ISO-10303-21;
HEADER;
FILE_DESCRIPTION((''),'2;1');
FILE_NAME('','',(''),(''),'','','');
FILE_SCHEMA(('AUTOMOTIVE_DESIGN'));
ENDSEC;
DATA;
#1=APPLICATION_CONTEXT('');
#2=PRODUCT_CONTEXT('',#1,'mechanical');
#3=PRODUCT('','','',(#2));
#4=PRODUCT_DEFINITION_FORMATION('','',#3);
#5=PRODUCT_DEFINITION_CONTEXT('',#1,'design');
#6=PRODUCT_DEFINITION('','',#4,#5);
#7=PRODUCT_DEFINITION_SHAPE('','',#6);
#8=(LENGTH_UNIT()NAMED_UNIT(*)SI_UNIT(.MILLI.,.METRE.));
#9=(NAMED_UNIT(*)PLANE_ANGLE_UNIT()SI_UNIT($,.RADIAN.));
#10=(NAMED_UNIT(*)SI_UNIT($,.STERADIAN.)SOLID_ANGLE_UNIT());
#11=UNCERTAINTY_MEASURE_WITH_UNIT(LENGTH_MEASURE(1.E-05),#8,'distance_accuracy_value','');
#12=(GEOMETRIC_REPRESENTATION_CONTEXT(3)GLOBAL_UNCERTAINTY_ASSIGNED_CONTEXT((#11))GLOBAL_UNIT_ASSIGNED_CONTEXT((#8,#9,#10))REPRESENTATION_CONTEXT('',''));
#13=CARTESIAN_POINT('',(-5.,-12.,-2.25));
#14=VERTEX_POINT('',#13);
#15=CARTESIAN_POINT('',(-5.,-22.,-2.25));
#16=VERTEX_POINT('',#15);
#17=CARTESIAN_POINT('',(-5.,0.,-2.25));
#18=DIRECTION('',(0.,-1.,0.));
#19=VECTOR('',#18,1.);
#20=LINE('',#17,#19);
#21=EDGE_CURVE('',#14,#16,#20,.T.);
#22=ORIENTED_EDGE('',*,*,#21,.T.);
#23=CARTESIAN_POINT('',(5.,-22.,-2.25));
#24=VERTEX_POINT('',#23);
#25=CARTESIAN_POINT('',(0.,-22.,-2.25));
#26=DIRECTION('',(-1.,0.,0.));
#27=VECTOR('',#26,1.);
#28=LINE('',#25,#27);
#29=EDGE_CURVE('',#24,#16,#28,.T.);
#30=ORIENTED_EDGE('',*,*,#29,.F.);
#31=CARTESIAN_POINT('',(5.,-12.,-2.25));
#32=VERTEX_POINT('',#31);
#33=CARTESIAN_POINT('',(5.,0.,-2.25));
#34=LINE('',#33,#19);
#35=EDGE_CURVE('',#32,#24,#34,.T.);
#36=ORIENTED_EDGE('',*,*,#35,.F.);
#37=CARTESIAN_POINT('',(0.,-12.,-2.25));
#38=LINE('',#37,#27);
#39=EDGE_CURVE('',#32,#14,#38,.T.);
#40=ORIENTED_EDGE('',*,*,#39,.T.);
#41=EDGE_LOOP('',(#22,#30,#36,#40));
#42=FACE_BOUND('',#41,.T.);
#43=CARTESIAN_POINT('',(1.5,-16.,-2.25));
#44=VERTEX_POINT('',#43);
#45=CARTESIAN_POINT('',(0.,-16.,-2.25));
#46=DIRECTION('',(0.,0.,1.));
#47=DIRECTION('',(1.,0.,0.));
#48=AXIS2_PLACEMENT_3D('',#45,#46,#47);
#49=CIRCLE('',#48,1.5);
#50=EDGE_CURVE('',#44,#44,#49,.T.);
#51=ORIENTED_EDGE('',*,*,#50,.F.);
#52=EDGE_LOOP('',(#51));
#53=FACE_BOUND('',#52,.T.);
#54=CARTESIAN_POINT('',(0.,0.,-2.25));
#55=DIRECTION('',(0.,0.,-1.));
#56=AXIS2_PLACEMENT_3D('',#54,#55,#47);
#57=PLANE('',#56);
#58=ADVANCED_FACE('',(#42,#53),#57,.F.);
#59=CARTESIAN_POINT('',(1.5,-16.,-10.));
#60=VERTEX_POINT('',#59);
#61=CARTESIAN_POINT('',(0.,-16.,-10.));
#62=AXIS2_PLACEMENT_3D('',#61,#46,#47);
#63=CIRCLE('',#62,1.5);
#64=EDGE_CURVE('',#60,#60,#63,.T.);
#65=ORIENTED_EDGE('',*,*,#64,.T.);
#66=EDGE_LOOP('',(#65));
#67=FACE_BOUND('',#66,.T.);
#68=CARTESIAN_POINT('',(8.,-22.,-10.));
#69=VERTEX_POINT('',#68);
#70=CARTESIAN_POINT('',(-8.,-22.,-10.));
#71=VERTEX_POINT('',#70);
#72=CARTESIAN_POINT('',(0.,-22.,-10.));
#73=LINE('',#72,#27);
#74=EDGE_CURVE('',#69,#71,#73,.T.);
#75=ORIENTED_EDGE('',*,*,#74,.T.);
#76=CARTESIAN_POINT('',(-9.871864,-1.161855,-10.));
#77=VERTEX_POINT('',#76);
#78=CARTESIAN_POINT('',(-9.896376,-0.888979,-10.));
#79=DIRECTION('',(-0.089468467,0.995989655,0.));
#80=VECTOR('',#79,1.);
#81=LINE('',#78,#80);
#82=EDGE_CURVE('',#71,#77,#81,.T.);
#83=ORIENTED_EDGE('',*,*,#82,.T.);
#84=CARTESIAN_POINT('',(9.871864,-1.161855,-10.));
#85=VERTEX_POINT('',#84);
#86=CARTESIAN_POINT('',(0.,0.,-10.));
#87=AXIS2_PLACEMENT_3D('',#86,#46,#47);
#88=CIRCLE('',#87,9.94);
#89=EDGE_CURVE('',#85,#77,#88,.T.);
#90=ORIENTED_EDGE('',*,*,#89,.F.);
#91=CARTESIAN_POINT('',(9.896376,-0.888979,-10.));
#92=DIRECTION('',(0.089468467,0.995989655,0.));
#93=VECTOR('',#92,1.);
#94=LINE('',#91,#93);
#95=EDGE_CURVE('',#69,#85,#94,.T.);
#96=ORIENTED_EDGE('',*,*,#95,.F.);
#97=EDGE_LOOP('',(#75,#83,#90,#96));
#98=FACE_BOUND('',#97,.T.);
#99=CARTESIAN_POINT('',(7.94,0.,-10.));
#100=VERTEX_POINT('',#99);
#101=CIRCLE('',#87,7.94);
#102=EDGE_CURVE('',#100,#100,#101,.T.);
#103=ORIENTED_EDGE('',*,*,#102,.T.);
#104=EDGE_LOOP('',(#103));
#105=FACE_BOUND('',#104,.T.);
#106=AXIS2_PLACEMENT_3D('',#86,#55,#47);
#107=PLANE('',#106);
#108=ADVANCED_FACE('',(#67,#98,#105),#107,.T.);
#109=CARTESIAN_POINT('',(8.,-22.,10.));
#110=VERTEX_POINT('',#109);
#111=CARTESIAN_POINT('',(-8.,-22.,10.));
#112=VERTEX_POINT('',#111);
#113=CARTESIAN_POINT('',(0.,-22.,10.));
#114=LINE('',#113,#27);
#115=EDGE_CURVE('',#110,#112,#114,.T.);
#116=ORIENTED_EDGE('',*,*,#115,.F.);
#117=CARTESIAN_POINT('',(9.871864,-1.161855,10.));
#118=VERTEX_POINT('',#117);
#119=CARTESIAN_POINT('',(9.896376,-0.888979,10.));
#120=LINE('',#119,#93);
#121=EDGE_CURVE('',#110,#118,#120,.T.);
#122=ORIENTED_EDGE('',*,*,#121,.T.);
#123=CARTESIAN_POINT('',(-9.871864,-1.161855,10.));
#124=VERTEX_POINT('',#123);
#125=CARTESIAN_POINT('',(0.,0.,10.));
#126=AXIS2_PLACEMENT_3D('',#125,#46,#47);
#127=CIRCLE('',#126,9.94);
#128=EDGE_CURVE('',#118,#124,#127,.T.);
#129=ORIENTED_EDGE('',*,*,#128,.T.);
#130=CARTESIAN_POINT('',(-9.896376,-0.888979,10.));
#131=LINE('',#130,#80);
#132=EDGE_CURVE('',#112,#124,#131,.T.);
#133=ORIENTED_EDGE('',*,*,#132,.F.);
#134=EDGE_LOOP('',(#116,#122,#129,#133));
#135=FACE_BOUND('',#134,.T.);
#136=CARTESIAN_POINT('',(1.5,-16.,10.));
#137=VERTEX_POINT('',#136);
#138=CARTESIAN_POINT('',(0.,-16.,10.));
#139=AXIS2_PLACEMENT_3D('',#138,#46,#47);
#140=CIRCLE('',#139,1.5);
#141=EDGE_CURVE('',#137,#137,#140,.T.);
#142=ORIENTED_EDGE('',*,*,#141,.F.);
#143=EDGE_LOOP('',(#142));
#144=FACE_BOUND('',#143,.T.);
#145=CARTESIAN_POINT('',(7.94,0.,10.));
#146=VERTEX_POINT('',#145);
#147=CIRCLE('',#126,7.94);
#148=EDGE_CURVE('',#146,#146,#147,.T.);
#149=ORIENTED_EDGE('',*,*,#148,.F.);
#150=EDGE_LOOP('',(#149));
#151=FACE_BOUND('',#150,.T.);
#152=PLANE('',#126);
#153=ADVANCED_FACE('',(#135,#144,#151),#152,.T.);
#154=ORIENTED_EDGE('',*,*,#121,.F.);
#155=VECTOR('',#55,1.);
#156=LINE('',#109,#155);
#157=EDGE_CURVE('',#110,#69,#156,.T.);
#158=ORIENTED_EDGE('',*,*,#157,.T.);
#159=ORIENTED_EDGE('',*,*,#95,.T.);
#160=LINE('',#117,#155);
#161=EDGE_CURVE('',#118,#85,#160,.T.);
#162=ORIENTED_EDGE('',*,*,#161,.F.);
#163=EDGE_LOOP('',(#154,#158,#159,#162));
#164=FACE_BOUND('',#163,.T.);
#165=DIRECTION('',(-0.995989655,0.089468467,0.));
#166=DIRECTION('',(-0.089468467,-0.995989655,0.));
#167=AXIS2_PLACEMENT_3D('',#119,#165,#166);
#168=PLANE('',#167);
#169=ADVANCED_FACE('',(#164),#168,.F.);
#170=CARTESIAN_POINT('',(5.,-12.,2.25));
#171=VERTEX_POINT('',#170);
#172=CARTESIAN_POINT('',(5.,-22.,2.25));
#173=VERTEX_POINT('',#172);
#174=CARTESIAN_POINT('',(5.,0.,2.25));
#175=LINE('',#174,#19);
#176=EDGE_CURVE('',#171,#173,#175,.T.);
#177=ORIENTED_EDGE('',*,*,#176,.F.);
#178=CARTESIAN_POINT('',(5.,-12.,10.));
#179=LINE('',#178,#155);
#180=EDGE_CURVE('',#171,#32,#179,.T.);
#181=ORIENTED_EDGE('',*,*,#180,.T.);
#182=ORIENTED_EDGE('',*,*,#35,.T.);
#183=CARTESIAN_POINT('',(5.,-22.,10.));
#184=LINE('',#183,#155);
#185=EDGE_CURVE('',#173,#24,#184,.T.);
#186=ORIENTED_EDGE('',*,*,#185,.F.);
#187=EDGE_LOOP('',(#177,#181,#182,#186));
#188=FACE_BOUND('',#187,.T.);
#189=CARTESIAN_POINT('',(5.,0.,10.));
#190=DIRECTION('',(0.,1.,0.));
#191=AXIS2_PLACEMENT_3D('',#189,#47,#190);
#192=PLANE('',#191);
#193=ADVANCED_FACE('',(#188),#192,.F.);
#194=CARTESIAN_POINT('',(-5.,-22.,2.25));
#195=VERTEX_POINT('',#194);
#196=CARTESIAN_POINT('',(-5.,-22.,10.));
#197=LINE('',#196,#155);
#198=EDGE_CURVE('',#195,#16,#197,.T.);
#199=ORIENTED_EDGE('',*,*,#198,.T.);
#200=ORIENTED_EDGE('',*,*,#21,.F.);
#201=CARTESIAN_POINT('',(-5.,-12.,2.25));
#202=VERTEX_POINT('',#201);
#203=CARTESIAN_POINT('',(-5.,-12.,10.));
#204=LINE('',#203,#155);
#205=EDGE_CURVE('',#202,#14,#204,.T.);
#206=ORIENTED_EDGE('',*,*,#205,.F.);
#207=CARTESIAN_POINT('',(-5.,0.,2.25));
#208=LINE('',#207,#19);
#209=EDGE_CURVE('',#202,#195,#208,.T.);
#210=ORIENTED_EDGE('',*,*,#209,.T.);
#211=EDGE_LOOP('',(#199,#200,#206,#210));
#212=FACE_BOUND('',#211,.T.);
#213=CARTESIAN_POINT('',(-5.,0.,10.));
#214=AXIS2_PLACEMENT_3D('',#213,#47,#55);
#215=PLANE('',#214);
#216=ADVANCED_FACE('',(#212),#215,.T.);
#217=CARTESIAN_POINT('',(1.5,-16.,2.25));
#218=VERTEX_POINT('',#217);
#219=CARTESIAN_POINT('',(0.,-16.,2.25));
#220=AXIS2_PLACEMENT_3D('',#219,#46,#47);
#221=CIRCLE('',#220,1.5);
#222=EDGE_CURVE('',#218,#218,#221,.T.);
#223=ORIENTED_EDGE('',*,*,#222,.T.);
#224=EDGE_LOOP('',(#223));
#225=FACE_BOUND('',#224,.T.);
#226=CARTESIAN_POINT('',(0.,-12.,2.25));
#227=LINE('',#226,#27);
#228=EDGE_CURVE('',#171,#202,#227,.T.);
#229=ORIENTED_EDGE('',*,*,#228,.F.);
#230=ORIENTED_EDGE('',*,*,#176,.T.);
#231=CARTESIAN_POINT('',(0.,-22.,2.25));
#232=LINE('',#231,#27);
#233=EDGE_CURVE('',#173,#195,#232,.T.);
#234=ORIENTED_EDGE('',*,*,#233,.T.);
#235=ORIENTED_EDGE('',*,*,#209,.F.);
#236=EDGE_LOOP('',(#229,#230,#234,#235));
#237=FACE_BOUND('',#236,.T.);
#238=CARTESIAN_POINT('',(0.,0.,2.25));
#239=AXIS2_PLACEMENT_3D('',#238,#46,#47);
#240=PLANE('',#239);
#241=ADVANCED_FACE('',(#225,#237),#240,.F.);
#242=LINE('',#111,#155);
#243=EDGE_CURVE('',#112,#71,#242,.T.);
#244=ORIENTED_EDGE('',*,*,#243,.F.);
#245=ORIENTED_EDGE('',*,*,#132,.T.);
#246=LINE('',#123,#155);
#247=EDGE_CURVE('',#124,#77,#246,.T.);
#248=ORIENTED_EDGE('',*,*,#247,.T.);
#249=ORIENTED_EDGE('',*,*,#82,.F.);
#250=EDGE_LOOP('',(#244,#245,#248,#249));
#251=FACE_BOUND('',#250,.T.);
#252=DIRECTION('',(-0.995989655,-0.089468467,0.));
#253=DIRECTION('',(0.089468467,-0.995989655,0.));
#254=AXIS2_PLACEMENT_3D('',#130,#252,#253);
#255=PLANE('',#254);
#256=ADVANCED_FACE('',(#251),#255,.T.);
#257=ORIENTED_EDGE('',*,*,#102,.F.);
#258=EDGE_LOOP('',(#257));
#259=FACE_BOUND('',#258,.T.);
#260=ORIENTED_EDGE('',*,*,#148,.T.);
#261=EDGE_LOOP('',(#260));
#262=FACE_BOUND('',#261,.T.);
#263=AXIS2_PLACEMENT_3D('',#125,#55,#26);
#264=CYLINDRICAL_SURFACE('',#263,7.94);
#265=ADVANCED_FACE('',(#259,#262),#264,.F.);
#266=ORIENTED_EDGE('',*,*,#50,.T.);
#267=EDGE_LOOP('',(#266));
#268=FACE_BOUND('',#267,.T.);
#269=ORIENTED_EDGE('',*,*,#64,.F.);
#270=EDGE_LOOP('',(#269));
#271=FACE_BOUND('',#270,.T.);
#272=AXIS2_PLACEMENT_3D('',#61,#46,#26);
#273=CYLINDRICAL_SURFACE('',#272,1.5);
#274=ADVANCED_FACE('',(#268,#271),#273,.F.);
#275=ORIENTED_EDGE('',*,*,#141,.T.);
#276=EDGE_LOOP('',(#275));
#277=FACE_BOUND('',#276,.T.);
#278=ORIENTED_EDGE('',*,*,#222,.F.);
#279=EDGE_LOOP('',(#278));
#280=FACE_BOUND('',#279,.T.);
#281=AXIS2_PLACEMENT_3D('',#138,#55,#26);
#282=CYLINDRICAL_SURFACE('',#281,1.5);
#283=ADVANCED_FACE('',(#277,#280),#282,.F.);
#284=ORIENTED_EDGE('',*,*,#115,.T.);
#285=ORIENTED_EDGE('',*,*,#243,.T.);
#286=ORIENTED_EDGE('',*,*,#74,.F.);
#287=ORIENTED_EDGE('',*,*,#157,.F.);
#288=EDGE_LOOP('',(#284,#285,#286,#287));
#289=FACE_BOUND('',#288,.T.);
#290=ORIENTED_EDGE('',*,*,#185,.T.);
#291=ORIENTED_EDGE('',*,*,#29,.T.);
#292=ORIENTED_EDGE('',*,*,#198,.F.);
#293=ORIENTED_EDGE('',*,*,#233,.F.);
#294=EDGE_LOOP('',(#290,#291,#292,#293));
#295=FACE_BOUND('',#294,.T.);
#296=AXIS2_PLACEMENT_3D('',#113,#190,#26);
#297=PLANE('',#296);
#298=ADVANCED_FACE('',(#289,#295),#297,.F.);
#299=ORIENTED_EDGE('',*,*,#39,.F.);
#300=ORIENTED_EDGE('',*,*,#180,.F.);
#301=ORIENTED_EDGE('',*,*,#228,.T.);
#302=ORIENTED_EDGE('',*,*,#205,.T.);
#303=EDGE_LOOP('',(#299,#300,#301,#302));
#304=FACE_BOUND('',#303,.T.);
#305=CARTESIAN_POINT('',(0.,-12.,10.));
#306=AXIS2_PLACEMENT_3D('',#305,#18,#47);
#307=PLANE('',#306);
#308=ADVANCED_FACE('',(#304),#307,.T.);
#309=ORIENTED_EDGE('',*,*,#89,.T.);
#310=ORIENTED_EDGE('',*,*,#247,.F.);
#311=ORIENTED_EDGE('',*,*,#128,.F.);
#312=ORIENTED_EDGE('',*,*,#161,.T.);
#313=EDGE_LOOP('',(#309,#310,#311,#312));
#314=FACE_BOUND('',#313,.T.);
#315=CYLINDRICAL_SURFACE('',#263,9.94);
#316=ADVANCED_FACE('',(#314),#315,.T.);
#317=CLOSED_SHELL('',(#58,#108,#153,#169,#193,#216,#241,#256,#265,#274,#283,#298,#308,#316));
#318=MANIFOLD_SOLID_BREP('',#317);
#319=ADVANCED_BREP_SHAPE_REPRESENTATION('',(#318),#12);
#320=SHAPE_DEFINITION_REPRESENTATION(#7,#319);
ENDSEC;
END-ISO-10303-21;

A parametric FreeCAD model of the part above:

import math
import FreeCAD as App
import Part
import Sketcher

V = App.Vector

doc = App.newDocument("Part")
body = doc.addObject("PartDesign::Body", "Body")

# Sketch on XY plane
sketch1 = body.newObject("Sketcher::SketchObject", "Sketch")
sketch1.AttachmentSupport = (doc.getObject("XY_Plane"), [""])
sketch1.MapMode = "FlatFace"
sketch1.addGeometry([
    Part.LineSegment(V(8, -22, 0), V(9.9, -1.2, 0)),  # 0
    Part.ArcOfCircle(Part.Circle(V(0, 0, 0), V(0, 0, 1), 9.9), math.radians(-7), math.radians(187)),  # 1
    Part.LineSegment(V(-9.9, -1.2, 0), V(-8, -22, 0)),  # 2
    Part.LineSegment(V(-8, -22, 0), V(-5, -22, 0)),  # 3
    Part.LineSegment(V(-5, -22, 0), V(-5, -12, 0)),  # 4
    Part.LineSegment(V(-5, -12, 0), V(5, -12, 0)),  # 5
    Part.LineSegment(V(5, -12, 0), V(5, -22, 0)),  # 6
    Part.LineSegment(V(5, -22, 0), V(8, -22, 0)),  # 7
    Part.Circle(V(0, 0, 0), V(0, 0, 1), 7.9),  # 8
], False)
sketch1.addConstraint([
    Sketcher.Constraint("Coincident", 0, 2, 1, 1),
    Sketcher.Constraint("Coincident", 1, 2, 2, 1),
    Sketcher.Constraint("Coincident", 2, 2, 3, 1),
    Sketcher.Constraint("Coincident", 3, 2, 4, 1),
    Sketcher.Constraint("Coincident", 4, 2, 5, 1),
    Sketcher.Constraint("Coincident", 5, 2, 6, 1),
    Sketcher.Constraint("Coincident", 6, 2, 7, 1),
    Sketcher.Constraint("Coincident", 7, 2, 0, 1),
    Sketcher.Constraint("Horizontal", 3),
    Sketcher.Constraint("Vertical", 4),
    Sketcher.Constraint("Horizontal", 5),
    Sketcher.Constraint("Vertical", 6),
    Sketcher.Constraint("Horizontal", 7),
    Sketcher.Constraint("Coincident", 1, 3, -1, 1),
    Sketcher.Constraint("Coincident", 8, 3, -1, 1),
    Sketcher.Constraint("Symmetric", 3, 2, 6, 2, -2),
    Sketcher.Constraint("Horizontal", 0, 2, 1, 2),
    Sketcher.Constraint("Equal", 3, 7),
    Sketcher.Constraint("Equal", 5, 4),
    Sketcher.Constraint("Diameter", 8, 15.88),
    Sketcher.Constraint("DistanceX", 3, 1, 3, 2, 3.0),
    Sketcher.Constraint("DistanceX", 5, 1, 5, 2, 10.0),
    Sketcher.Constraint("Radius", 1, 9.94),
    Sketcher.Constraint("DistanceY", 2, 2, -1, 1, 22.0),
    Sketcher.Constraint("Distance", 0, 20.92205),
])
pad1 = body.newObject("PartDesign::Pad", "Pad")
pad1.Profile = sketch1
pad1.Length = 10

# Sketch on XY plane
sketch2 = body.newObject("Sketcher::SketchObject", "Sketch001")
sketch2.AttachmentSupport = (doc.getObject("XY_Plane"), [""])
sketch2.MapMode = "FlatFace"
sketch2.AttachmentOffset = App.Placement(V(0, 0, 2.25), App.Rotation())
sketch2.addGeometry([
    Part.LineSegment(V(-5, -12, 0), V(-5, -22, 0)),  # 0
    Part.LineSegment(V(-5, -22, 0), V(5, -22, 0)),  # 1
    Part.LineSegment(V(5, -22, 0), V(5, -12, 0)),  # 2
    Part.LineSegment(V(5, -12, 0), V(-5, -12, 0)),  # 3
    Part.Circle(V(0, -16, 0), V(0, 0, 1), 1.5),  # 4
], False)
sketch2.addConstraint([
    Sketcher.Constraint("Coincident", 0, 2, 1, 1),
    Sketcher.Constraint("Coincident", 1, 2, 2, 1),
    Sketcher.Constraint("Coincident", 2, 2, 3, 1),
    Sketcher.Constraint("Coincident", 3, 2, 0, 1),
    Sketcher.Constraint("Vertical", 0),
    Sketcher.Constraint("Horizontal", 1),
    Sketcher.Constraint("Vertical", 2),
    Sketcher.Constraint("Horizontal", 3),
    Sketcher.Constraint("PointOnObject", 4, 3, -2),
    Sketcher.Constraint("Equal", 3, 0),
    Sketcher.Constraint("Diameter", 4, 3.0),
    Sketcher.Constraint("DistanceX", 1, 1, 1, 2, 10.0),
    Sketcher.Constraint("DistanceY", 4, 3, -1, 1, 16.0),
    Sketcher.Constraint("DistanceX", 0, 2, -1, 1, 5.0),
    Sketcher.Constraint("DistanceY", 0, 2, -1, 1, 22.0),
])
pad2 = body.newObject("PartDesign::Pad", "Pad001")
pad2.Profile = sketch2
pad2.Length = 7.75
body2 = doc.addObject("PartDesign::Body", "Body001")
doc.recompute()

body2.BaseFeature = body
doc.recompute()

mirroring = doc.addObject("Part::Mirroring", "Mirroring")
mirroring.Source = body
mirroring.Base = V(0, 0, 0)
mirroring.Normal = V(0, 0, 1)
body3 = doc.addObject("PartDesign::Body", "Body002")
body3.BaseFeature = mirroring
boolean = body2.newObject("PartDesign::Boolean", "Boolean")
boolean.Type = "Fuse"
boolean.addObjects([body3])
doc.recompute()
mirroring.Visibility = False

doc.recompute()
